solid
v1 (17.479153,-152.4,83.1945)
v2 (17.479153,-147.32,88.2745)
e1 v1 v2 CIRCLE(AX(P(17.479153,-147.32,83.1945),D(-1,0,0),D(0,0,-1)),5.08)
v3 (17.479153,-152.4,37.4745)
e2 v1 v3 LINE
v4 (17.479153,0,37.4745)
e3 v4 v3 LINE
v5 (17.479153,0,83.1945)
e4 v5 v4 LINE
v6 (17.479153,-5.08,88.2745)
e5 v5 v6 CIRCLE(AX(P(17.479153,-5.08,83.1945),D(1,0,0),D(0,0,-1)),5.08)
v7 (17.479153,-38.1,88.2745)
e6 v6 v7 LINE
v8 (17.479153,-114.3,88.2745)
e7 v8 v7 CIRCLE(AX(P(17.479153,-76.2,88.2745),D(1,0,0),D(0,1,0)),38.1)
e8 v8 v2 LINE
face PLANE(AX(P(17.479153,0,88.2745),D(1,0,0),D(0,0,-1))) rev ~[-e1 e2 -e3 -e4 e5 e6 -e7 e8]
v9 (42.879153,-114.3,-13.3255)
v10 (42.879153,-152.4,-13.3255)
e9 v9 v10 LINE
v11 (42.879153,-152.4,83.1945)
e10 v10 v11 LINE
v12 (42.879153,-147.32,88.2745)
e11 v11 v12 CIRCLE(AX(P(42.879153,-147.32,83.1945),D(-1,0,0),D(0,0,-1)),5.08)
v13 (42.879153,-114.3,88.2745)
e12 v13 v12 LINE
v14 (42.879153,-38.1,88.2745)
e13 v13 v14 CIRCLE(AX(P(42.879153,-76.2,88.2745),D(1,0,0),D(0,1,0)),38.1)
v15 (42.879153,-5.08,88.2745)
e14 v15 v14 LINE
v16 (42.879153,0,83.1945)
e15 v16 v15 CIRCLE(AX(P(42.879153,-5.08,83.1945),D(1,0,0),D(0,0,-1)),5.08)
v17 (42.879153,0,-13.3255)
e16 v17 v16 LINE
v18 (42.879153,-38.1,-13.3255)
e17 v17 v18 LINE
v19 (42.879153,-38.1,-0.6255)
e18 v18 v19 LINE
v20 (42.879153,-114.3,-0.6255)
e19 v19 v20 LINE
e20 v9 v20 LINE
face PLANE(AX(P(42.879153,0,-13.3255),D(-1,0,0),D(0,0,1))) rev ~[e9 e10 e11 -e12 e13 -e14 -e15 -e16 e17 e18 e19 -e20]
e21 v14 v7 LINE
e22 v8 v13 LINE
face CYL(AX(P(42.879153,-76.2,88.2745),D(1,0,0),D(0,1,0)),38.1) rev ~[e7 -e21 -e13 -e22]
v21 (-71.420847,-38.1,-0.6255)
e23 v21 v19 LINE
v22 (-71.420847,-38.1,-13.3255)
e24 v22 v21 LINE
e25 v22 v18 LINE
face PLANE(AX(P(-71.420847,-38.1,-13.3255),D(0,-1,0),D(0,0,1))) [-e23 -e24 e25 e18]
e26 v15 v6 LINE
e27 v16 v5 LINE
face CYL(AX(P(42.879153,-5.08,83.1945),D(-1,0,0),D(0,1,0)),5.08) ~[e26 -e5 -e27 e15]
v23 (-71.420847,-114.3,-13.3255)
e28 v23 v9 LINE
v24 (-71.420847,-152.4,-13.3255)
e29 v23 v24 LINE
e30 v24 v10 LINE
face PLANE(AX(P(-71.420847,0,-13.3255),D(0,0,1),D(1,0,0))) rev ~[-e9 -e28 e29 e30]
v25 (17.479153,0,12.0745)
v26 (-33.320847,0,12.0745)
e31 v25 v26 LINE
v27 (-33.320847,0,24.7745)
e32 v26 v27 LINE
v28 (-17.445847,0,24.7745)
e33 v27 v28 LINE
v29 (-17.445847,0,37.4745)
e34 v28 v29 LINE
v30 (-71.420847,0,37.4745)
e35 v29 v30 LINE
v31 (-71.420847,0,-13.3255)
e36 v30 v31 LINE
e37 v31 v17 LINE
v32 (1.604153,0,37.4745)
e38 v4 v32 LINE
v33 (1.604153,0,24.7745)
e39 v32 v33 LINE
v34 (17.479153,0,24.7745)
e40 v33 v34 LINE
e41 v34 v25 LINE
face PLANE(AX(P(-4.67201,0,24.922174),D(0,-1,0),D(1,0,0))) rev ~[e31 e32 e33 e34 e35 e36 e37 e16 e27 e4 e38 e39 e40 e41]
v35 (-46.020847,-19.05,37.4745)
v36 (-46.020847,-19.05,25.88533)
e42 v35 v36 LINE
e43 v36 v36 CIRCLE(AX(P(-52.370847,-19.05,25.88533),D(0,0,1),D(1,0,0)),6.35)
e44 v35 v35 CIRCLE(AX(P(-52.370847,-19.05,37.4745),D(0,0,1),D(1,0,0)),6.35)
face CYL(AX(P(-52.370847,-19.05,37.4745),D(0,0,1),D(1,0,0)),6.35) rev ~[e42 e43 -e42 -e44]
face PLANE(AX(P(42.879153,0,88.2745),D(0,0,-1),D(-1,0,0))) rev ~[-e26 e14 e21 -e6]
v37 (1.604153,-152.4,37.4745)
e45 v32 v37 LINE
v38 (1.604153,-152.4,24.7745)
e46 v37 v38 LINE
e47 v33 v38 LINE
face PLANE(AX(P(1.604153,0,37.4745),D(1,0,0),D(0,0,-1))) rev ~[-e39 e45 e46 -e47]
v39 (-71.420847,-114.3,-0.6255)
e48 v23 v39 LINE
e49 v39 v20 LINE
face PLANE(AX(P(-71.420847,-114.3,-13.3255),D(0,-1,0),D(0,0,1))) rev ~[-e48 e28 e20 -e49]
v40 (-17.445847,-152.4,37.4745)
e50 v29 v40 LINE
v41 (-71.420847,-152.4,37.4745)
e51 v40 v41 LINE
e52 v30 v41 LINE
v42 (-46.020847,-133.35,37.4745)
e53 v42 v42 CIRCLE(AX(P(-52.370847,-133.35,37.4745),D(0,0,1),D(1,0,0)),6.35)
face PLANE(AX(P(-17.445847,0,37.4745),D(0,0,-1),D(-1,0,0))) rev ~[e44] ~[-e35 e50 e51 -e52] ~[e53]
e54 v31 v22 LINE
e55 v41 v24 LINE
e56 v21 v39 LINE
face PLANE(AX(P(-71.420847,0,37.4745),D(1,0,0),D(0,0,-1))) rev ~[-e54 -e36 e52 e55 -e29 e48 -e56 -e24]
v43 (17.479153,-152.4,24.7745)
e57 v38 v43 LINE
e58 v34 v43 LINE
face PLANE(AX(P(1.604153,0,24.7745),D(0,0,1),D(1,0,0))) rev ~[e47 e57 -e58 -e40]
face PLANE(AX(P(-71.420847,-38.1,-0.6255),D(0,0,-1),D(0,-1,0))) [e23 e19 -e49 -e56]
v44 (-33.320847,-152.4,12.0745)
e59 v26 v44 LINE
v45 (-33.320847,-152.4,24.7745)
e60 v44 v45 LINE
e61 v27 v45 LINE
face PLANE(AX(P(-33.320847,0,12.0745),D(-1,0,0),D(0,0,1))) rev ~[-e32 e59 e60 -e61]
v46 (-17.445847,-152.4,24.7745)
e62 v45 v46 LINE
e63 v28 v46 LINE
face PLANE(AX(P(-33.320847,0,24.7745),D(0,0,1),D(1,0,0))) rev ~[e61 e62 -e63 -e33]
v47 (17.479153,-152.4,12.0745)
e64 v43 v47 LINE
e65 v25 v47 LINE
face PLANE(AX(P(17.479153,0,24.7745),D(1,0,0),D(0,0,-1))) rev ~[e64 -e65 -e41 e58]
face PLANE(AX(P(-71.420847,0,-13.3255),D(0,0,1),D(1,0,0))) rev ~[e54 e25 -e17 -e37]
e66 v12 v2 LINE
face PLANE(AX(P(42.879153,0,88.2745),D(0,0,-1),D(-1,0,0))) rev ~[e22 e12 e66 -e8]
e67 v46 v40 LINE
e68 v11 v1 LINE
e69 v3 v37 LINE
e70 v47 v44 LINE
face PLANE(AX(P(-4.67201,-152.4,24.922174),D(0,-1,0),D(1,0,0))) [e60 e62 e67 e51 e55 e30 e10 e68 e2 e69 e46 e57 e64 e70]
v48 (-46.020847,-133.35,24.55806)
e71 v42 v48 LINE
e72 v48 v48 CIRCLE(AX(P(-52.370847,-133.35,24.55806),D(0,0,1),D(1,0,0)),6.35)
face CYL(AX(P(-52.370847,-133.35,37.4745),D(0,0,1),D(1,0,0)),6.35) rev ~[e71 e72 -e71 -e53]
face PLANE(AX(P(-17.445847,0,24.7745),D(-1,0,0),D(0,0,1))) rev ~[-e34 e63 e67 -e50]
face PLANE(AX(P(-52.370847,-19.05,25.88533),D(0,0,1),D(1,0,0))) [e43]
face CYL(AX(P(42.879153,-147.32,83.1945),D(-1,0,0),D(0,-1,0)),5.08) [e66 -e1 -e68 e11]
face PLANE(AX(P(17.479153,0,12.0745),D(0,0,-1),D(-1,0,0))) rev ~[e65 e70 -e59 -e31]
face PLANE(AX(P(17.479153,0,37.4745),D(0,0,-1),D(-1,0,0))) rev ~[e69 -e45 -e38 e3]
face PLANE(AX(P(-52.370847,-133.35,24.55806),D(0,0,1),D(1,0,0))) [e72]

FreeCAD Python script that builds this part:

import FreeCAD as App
import Part
import Sketcher
Q = App.Units.Quantity


def edges_at(feature, points):
    """Names of the edges that pass closest to the given points."""
    edges = feature.Shape.Edges
    near = lambda p: min(range(len(edges)), key=lambda i: edges[i].distToShape(Part.Vertex(*p))[0])
    return sorted({f"Edge{near(p) + 1}" for p in points})


def add_polygon(sketch, points):
    """Adds a closed chain of lines whose ends are joined by coincident constraints."""
    first, n = sketch.GeometryCount, len(points)
    for a, b in zip(points, points[1:] + points[:1]):
        sketch.addGeometry(Part.LineSegment(App.Vector(*a, 0), App.Vector(*b, 0)), False)
    for i in range(n):
        sketch.addConstraint(Sketcher.Constraint("Coincident", first + i, 2, first + (i + 1) % n, 1))

doc = App.newDocument("Part")
body = doc.addObject("PartDesign::Body", "Body")

sketch1 = body.newObject("Sketcher::SketchObject", "Sketch")
sketch1.AttachmentSupport = (doc.getObject("XZ_Plane"), [""])
sketch1.MapMode = "FlatFace"
add_polygon(sketch1, [(-17, 37), (-71, 37), (-71, -13), (43, -13), (43, 88), (17, 88), (17, 37), (2, 37), (2, 25), (17, 25), (17, 12), (-33, 12), (-33, 25), (-17, 25)])
sketch1.addConstraint([
    Sketcher.Constraint("Horizontal", 0),
    Sketcher.Constraint("Vertical", 1),
    Sketcher.Constraint("Horizontal", 2),
    Sketcher.Constraint("Vertical", 3),
    Sketcher.Constraint("Horizontal", 4),
    Sketcher.Constraint("Vertical", 5),
    Sketcher.Constraint("Horizontal", 6),
    Sketcher.Constraint("Vertical", 7),
    Sketcher.Constraint("Horizontal", 8),
    Sketcher.Constraint("Vertical", 9),
    Sketcher.Constraint("Horizontal", 10),
    Sketcher.Constraint("Vertical", 11),
    Sketcher.Constraint("Horizontal", 12),
    Sketcher.Constraint("Vertical", 13),
    Sketcher.Constraint("Horizontal", 0, 2, 5, 2),
    Sketcher.Constraint("Horizontal", 8, 2, 11, 2),
    Sketcher.Constraint("Vertical", 5, 2, 8, 2),
    Sketcher.Constraint("Equal", 8, 12),
    Sketcher.Constraint("Equal", 10, 1),
    Sketcher.Constraint("Equal", 1, 5),
    Sketcher.Constraint("Equal", 7, 9),
    Sketcher.Constraint("DistanceX", 4, 2, 4, 1, Q("1 in")),
    Sketcher.Constraint("DistanceX", 10, 2, 10, 1, Q("2 in")),
    Sketcher.Constraint("DistanceX", 2, 1, 2, 2, Q("4.5 in")),
    Sketcher.Constraint("DistanceY", 7, 2, 7, 1, Q("0.5 in")),
    Sketcher.Constraint("DistanceX", 0, 2, 0, 1, Q("2.125 in")),
    Sketcher.Constraint("DistanceY", -1, 1, 0, 2, Q("37.4745 mm")),
    Sketcher.Constraint("DistanceX", 0, 2, -1, 1, Q("71.420847 mm")),
])
pad1 = body.newObject("PartDesign::Pad", "Pad")
pad1.Profile = sketch1
pad1.Length = Q("6 in")

sketch2 = body.newObject("Sketcher::SketchObject", "Sketch001")
sketch2.AttachmentSupport = (doc.getObject("YZ_Plane"), [""])
sketch2.MapMode = "FlatFace"
sketch2.AttachmentOffset = App.Placement(App.Vector(0, 0, -71.420847), App.Rotation())
add_polygon(sketch2, [(-38, -1), (-38, -13), (-114, -13), (-114, -1)])
sketch2.addConstraint([
    Sketcher.Constraint("Vertical", 0),
    Sketcher.Constraint("Horizontal", 1),
    Sketcher.Constraint("Vertical", 2),
    Sketcher.Constraint("Horizontal", 3),
    Sketcher.Constraint("DistanceX", 1, 2, 1, 1, Q("3 in")),
    Sketcher.Constraint("DistanceY", 0, 2, 0, 1, Q("0.5 in")),
    Sketcher.Constraint("DistanceX", 0, 2, -1, 1, Q("1.5 in")),
    Sketcher.Constraint("DistanceY", 0, 2, -1, 1, Q("13.3255 mm")),
])
pocket1 = body.newObject("PartDesign::Pocket", "Pocket")
pocket1.Profile = sketch2
pocket1.Length = Q("5 in")
pocket1.Reversed = True

sketch3 = body.newObject("Sketcher::SketchObject", "Sketch002")
sketch3.AttachmentSupport = (doc.getObject("XY_Plane"), [""])
sketch3.MapMode = "FlatFace"
sketch3.AttachmentOffset = App.Placement(App.Vector(0, 0, 37.4745), App.Rotation())
sketch3.addGeometry(Part.Circle(App.Vector(-52, -19, 0), App.Vector(0, 0, 1), 6), False)
sketch3.addConstraint([
    Sketcher.Constraint("Diameter", 0, Q("0.5 in")),
    Sketcher.Constraint("DistanceY", 0, 3, -1, 1, Q("0.75 in")),
    Sketcher.Constraint("DistanceX", 0, 3, -1, 1, Q("52.370847 mm")),
])
pocket2 = body.newObject("PartDesign::Pocket", "Pocket001")
pocket2.Profile = sketch3
pocket2.Length = 11.58917

sketch4 = body.newObject("Sketcher::SketchObject", "Sketch003")
sketch4.AttachmentSupport = (doc.getObject("XY_Plane"), [""])
sketch4.MapMode = "FlatFace"
sketch4.AttachmentOffset = App.Placement(App.Vector(0, 0, 37.4745), App.Rotation())
sketch4.addGeometry(Part.Circle(App.Vector(-52, -133, 0), App.Vector(0, 0, 1), 6), False)
sketch4.addConstraint([
    Sketcher.Constraint("Diameter", 0, Q("0.5 in")),
    Sketcher.Constraint("DistanceY", 0, 3, -1, 1, Q("5.25 in")),
    Sketcher.Constraint("DistanceX", 0, 3, -1, 1, Q("52.370847 mm")),
])
pocket3 = body.newObject("PartDesign::Pocket", "Pocket002")
pocket3.Profile = sketch4
pocket3.Length = 12.91644

sketch5 = body.newObject("Sketcher::SketchObject", "Sketch004")
sketch5.AttachmentSupport = (doc.getObject("YZ_Plane"), [""])
sketch5.MapMode = "FlatFace"
sketch5.AttachmentOffset = App.Placement(App.Vector(0, 0, 42.879153), App.Rotation())
sketch5.addGeometry(Part.Circle(App.Vector(-76, 88, 0), App.Vector(0, 0, 1), 38), False)
sketch5.addConstraint([
    Sketcher.Constraint("Diameter", 0, Q("3 in")),
    Sketcher.Constraint("DistanceX", 0, 3, -1, 1, Q("3 in")),
    Sketcher.Constraint("DistanceY", -1, 1, 0, 3, Q("88.2745 mm")),
])
pocket4 = body.newObject("PartDesign::Pocket", "Pocket003")
pocket4.Profile = sketch5
pocket4.Length = Q("1 in")
doc.recompute()

fillet = body.newObject("PartDesign::Fillet", "Fillet")
fillet.Base = (pocket4, edges_at(pocket4, [(30.179, 0, 88.275), (30.179, -152.4, 88.275)]))
fillet.Radius = Q("0.2 in")

doc.recompute()
